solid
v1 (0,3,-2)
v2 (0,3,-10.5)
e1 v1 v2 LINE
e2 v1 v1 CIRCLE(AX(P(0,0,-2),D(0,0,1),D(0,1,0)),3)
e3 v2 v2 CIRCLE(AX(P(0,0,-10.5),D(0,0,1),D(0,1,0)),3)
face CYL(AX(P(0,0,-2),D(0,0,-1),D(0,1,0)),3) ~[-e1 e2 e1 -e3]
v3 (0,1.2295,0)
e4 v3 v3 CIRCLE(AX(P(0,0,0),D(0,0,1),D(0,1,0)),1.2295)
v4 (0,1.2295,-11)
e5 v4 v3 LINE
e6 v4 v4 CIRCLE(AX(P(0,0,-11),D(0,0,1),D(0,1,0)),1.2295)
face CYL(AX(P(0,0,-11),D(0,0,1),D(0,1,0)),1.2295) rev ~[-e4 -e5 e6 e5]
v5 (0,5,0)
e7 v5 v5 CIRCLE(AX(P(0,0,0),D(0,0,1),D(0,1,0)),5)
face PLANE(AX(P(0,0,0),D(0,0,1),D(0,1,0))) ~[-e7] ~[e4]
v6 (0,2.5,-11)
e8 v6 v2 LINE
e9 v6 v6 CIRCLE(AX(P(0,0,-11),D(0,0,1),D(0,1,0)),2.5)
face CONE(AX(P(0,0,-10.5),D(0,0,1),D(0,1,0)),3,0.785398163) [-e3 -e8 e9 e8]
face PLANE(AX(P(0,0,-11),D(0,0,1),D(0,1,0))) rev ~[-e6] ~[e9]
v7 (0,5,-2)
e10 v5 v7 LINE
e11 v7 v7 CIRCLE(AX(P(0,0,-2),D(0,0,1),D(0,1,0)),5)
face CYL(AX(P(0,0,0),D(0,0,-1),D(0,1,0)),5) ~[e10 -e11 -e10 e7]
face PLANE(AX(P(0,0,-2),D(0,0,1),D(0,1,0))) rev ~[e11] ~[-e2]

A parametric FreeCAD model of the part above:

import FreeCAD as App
import Part
import Sketcher
from FreeCAD import Vector
Q = App.Units.Quantity


def edges_at(feature, points):
    """Names of the edges that pass closest to the given points."""
    edges = feature.Shape.Edges
    near = lambda p: min(range(len(edges)), key=lambda i: edges[i].distToShape(Part.Vertex(*p))[0])
    return sorted({f"Edge{near(p) + 1}" for p in points})


def add_polygon(sketch, points):
    """Adds a closed chain of lines whose ends are joined by coincident constraints."""
    first, n = sketch.GeometryCount, len(points)
    for a, b in zip(points, points[1:] + points[:1]):
        sketch.addGeometry(Part.LineSegment(App.Vector(*a, 0), App.Vector(*b, 0)), False)
    for i in range(n):
        sketch.addConstraint(Sketcher.Constraint("Coincident", first + i, 2, first + (i + 1) % n, 1))

doc = App.newDocument("Part")
body = doc.addObject("PartDesign::Body", "Body")

# Sketch on YZ plane
sketch1 = body.newObject("Sketcher::SketchObject", "Sketch")
sketch1.AttachmentSupport = (doc.getObject("YZ_Plane"), [""])
sketch1.MapMode = "FlatFace"
add_polygon(sketch1, [(5, 0), (0, 0), (0, -11), (3, -11), (3, -2), (5, -2)])  # lines 0-5
sketch1.addConstraint([
    Sketcher.Constraint("Horizontal", 0),
    Sketcher.Constraint("Vertical", 1),
    Sketcher.Constraint("Horizontal", 2),
    Sketcher.Constraint("Vertical", 3),
    Sketcher.Constraint("Horizontal", 4),
    Sketcher.Constraint("Vertical", 5),
    Sketcher.Constraint("Coincident", 0, 2, -1, 1),
    Sketcher.Constraint("Equal", 4, 5),
    Sketcher.Constraint("DistanceX", 0, 2, 0, 1, Q("5 mm")),
    Sketcher.Constraint("DistanceX", 2, 1, 2, 2, Q("3 mm")),
    Sketcher.Constraint("DistanceY", 3, 1, 3, 2, Q("9 mm")),
])
revolution = body.newObject("PartDesign::Revolution", "Revolution")
revolution.Profile = sketch1
revolution.ReferenceAxis = (sketch1, ["V_Axis"])
revolution.Angle = 360

# Sketch on XY plane
sketch2 = body.newObject("Sketcher::SketchObject", "Sketch001")
sketch2.AttachmentSupport = (doc.getObject("XY_Plane"), [""])
sketch2.MapMode = "FlatFace"
sketch2.AttachmentOffset = App.Placement(Vector(0, 0, -11), App.Rotation())
sketch2.addGeometry(Part.Circle(Vector(0, 0, 0), Vector(0, 0, 1), 1.2), False)
sketch2.addConstraint([
    Sketcher.Constraint("Coincident", 0, 3, -1, 1),
    Sketcher.Constraint("Diameter", 0, Q("2.459 mm")),
])
doc.recompute()
hole = body.newObject("PartDesign::Hole", "Hole")
hole.Profile = sketch2
hole.ThreadType = "None"
hole.Diameter = 2.459
hole.DepthType = "ThroughAll"
hole.Reversed = True
doc.recompute()

chamfer = body.newObject("PartDesign::Chamfer", "Chamfer")
chamfer.Base = (hole, edges_at(hole, [(0, -3, -11)]))
chamfer.Size = 0.5

doc.recompute()
